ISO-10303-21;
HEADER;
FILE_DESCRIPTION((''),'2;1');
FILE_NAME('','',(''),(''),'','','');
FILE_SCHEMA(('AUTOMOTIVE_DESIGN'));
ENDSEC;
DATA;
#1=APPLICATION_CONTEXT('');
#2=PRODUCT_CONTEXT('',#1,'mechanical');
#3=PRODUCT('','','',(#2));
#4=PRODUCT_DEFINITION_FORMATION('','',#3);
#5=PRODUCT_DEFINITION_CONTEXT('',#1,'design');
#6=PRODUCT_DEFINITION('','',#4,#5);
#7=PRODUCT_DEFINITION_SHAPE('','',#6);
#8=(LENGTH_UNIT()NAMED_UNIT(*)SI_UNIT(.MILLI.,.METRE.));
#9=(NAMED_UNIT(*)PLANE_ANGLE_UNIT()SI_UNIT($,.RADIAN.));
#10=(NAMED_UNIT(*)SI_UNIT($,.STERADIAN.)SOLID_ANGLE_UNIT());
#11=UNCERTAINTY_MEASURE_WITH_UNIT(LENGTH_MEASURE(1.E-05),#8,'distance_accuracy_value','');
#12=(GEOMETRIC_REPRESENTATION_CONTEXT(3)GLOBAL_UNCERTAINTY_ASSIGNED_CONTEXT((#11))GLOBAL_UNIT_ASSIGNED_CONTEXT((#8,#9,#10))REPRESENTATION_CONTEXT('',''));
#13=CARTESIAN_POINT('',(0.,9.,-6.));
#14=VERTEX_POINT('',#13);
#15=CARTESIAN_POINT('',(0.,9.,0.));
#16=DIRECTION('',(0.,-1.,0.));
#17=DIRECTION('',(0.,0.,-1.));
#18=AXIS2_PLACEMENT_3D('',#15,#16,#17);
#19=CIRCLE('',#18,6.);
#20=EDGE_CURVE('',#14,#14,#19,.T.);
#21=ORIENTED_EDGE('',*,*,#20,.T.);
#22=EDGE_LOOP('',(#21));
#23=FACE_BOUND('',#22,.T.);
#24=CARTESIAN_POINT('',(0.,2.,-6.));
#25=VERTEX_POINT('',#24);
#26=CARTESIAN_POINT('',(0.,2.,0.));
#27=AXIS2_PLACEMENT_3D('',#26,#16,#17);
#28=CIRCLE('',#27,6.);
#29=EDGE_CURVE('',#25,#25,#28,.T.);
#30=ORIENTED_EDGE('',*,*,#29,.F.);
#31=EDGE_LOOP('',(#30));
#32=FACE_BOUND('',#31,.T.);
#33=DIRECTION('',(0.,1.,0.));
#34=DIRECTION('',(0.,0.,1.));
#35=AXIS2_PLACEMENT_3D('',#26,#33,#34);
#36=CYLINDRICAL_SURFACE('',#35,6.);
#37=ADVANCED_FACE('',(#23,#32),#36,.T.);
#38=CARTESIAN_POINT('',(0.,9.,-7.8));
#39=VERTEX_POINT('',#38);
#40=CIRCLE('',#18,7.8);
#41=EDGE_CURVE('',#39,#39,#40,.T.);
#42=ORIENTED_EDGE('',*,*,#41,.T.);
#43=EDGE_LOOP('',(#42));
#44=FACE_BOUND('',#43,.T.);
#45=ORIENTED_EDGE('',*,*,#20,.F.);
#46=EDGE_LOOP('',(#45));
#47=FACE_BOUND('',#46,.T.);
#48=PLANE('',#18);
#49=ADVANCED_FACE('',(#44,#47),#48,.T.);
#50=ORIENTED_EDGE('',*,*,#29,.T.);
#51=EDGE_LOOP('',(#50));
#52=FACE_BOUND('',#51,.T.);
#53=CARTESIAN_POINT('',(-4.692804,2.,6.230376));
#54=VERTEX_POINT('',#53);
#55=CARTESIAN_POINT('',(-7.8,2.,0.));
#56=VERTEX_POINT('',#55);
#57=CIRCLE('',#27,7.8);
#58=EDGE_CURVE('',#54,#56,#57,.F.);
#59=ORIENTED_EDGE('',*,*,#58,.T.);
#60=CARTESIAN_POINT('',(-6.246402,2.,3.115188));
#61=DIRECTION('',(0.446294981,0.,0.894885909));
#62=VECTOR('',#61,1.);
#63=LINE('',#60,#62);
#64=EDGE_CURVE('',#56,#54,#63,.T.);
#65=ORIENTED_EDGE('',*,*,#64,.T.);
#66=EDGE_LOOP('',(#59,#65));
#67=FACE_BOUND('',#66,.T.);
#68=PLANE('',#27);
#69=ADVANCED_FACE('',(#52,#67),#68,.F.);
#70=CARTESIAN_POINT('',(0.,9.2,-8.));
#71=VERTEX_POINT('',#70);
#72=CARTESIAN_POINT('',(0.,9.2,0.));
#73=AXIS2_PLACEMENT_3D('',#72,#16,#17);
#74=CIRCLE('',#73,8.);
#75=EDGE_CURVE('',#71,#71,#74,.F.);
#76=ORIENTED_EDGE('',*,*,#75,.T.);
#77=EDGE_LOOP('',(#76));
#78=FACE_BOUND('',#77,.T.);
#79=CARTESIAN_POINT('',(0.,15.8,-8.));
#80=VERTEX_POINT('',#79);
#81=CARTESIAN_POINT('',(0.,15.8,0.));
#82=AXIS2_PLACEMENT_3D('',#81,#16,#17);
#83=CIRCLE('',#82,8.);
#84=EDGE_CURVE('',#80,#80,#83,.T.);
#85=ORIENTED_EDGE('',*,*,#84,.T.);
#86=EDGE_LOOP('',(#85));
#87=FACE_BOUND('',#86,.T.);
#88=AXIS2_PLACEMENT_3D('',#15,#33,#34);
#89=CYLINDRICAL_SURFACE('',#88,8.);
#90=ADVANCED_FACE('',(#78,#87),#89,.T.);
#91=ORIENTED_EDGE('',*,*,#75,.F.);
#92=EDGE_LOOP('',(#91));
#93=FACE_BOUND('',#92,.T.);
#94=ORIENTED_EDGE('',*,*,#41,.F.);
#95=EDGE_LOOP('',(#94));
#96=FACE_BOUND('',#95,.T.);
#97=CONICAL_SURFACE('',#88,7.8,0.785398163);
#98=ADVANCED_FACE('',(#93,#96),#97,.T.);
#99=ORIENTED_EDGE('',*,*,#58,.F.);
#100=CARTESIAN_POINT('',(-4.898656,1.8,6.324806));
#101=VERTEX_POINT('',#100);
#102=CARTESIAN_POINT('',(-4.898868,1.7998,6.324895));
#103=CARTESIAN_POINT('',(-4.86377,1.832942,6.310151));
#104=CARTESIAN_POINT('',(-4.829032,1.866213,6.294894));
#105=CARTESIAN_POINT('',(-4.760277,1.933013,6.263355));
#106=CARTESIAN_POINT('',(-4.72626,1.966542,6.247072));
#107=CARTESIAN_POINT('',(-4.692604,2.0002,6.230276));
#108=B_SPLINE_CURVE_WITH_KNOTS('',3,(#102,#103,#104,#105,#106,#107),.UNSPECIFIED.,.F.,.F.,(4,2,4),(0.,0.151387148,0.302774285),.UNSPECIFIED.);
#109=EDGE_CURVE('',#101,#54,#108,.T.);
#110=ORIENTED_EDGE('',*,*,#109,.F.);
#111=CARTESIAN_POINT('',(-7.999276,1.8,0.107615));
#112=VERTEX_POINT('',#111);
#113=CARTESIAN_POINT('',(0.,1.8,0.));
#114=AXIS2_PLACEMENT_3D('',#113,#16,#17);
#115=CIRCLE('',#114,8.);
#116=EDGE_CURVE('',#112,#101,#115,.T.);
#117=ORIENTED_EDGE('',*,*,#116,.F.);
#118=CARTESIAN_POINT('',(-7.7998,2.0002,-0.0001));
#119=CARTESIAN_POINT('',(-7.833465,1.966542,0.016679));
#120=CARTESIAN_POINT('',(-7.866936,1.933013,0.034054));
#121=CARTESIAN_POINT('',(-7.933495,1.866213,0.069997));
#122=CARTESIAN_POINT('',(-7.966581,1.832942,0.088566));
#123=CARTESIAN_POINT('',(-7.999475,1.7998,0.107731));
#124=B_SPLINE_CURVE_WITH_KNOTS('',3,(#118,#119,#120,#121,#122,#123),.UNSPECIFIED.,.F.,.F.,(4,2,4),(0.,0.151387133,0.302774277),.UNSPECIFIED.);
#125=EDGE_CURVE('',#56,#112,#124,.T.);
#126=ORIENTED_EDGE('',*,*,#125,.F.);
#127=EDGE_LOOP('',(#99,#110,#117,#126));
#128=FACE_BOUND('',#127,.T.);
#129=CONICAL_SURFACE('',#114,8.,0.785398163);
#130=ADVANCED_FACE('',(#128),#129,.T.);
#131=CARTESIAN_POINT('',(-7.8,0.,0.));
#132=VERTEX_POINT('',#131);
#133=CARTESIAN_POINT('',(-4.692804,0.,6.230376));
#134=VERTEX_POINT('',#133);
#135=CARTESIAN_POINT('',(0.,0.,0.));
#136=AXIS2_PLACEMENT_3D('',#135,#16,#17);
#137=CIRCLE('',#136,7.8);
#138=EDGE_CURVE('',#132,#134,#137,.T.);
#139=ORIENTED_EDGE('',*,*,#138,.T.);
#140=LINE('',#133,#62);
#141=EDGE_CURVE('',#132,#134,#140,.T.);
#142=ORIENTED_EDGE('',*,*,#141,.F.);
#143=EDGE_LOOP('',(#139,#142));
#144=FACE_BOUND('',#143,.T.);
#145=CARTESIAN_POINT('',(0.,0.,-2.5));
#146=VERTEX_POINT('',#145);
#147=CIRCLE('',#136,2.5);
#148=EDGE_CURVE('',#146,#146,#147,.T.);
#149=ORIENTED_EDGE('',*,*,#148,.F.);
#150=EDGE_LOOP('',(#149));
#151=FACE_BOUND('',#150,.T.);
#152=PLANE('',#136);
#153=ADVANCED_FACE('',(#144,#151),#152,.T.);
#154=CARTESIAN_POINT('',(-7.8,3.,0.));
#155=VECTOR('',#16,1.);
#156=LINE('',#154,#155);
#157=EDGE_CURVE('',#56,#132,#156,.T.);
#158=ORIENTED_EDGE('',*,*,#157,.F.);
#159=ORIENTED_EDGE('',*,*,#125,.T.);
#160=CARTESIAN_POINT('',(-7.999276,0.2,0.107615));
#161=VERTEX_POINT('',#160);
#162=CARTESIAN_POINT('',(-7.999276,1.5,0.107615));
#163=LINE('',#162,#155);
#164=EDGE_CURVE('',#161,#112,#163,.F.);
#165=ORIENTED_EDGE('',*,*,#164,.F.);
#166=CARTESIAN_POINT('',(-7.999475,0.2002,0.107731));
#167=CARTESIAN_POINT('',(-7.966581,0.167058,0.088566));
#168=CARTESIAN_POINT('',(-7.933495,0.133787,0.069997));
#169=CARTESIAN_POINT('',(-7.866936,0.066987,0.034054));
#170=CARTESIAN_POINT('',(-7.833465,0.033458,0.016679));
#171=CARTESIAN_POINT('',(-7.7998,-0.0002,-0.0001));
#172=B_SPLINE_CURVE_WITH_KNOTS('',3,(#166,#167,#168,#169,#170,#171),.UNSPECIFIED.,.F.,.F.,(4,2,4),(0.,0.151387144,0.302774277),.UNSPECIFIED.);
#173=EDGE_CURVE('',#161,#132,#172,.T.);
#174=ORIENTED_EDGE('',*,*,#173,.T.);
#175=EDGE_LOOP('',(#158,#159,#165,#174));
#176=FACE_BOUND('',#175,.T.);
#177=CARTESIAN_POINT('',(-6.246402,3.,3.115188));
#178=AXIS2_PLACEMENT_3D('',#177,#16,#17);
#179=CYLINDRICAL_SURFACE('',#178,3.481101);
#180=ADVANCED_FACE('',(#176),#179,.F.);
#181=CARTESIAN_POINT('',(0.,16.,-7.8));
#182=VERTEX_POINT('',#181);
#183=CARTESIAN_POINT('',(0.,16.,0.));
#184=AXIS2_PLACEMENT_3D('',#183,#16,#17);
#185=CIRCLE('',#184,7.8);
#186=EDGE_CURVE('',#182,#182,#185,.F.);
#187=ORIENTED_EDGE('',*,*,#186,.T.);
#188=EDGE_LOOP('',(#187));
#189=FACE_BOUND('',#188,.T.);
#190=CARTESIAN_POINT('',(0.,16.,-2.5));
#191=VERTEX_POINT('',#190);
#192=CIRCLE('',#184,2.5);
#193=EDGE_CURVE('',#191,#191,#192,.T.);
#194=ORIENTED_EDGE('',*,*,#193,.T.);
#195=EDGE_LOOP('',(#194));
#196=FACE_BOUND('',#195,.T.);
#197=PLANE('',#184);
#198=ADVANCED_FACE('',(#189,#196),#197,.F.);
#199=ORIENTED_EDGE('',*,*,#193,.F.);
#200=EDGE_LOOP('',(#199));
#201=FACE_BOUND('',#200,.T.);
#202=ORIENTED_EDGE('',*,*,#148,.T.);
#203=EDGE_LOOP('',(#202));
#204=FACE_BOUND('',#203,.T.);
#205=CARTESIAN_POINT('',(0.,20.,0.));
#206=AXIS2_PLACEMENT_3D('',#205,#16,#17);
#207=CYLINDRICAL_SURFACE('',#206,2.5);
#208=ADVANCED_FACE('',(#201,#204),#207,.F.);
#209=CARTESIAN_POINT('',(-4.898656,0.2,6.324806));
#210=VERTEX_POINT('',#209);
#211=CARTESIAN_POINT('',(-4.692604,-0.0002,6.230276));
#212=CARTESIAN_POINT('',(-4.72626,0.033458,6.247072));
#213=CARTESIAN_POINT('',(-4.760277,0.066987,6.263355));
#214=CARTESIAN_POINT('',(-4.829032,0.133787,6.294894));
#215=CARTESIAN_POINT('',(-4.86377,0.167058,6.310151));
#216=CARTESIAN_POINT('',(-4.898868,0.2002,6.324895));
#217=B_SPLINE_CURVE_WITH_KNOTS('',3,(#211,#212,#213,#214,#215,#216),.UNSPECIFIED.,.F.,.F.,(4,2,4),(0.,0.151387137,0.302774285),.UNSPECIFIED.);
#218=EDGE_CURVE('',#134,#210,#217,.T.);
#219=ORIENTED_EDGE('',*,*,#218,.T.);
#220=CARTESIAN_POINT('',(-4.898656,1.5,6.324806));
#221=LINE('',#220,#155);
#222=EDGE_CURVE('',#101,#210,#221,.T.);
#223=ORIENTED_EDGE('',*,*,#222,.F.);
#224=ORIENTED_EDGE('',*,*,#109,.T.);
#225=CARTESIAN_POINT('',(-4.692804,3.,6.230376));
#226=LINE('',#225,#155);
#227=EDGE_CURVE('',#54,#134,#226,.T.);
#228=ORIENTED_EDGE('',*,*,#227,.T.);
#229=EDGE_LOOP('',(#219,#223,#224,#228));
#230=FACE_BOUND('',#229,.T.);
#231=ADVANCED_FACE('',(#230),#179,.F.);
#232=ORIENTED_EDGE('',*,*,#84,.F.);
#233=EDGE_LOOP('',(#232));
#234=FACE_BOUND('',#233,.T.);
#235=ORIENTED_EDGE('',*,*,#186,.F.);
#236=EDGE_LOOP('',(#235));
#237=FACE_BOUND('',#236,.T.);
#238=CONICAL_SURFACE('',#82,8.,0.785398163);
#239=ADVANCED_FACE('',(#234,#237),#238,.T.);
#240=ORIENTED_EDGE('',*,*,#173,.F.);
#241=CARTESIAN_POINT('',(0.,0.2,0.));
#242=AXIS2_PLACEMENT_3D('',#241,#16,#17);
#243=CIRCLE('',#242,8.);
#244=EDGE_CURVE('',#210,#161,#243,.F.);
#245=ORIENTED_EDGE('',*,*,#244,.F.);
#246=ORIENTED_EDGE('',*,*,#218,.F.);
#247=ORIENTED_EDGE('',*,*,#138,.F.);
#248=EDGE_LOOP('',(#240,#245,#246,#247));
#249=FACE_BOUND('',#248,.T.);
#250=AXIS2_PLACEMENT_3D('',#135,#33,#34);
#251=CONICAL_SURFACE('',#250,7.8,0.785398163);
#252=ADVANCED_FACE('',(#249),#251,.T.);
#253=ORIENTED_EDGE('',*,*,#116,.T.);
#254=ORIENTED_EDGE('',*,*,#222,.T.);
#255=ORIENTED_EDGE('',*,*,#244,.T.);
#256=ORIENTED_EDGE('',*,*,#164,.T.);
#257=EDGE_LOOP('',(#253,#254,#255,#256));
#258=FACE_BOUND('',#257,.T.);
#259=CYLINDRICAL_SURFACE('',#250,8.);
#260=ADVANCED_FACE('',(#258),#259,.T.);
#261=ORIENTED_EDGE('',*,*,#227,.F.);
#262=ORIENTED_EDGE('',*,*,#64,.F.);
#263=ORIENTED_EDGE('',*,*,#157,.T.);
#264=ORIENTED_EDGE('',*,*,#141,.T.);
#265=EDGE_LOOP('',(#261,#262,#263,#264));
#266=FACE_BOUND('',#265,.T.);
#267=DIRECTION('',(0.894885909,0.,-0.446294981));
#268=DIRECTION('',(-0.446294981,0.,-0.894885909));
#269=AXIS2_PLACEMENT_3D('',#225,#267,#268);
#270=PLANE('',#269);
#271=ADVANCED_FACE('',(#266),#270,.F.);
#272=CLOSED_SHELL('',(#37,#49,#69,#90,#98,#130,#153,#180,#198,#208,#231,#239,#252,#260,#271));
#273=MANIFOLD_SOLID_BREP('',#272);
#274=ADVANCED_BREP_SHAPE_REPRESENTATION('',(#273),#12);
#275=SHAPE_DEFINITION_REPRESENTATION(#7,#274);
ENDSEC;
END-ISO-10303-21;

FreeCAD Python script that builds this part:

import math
import FreeCAD as App
import Part
import Sketcher
from FreeCAD import Vector


def edges_at(feature, points):
    """Names of the edges that pass closest to the given points."""
    edges = feature.Shape.Edges
    near = lambda p: min(range(len(edges)), key=lambda i: edges[i].distToShape(Part.Vertex(*p))[0])
    return sorted({f"Edge{near(p) + 1}" for p in points})

doc = App.newDocument("Part")
params = doc.addObject("Spreadsheet::Sheet", "Params")
for row, (alias, value) in enumerate([
    ("sketch1_diameter", "16 mm"),
    ("pad1_length", "7 mm"),
    ("sketch2_diameter", "12 mm"),
    ("pad2_length", "7 mm"),
    ("sketch3_diameter", "16 mm"),
    ("pad3_length", "2 mm"),
    ("chamfer_size", "0.2 mm"),
    ("sketch4_diameter", "5 mm"),
    ("pocket1_length", "20 mm"),
    ("pocket2_length", "3 mm"),
], start=1):
    params.set(f"A{row}", alias)
    params.set(f"B{row}", "=" + value)
    params.setAlias(f"B{row}", alias)

body = doc.addObject("PartDesign::Body", "Body")

# Sketch on XZ plane
sketch1 = body.newObject("Sketcher::SketchObject", "Sketch")
sketch1.AttachmentSupport = (doc.getObject("XZ_Plane"), [""])
sketch1.MapMode = "FlatFace"
sketch1.addGeometry(Part.Circle(Vector(0, 0, 0), Vector(0, 0, 1), 8), False)
sketch1.addConstraint(Sketcher.Constraint("Coincident", 0, 3, -1, 1))
sketch1.addConstraint(Sketcher.Constraint("Diameter", 0, 16.0))
sketch1.setExpression("Constraints[1]", "Params.sketch1_diameter")
pad1 = body.newObject("PartDesign::Pad", "Pad")
pad1.Profile = sketch1
pad1.setExpression("Length", "Params.pad1_length")
pad1.Reversed = True

# Sketch on XZ plane
sketch2 = body.newObject("Sketcher::SketchObject", "Sketch001")
sketch2.AttachmentSupport = (doc.getObject("XZ_Plane"), [""])
sketch2.MapMode = "FlatFace"
sketch2.AttachmentOffset = App.Placement(Vector(0, 0, -7), App.Rotation())
sketch2.addGeometry(Part.Circle(Vector(0, 0, 0), Vector(0, 0, 1), 6), False)
sketch2.addConstraint(Sketcher.Constraint("Coincident", 0, 3, -1, 1))
sketch2.addConstraint(Sketcher.Constraint("Diameter", 0, 12.0))
sketch2.setExpression("Constraints[1]", "Params.sketch2_diameter")
pad2 = body.newObject("PartDesign::Pad", "Pad001")
pad2.Profile = sketch2
pad2.setExpression("Length", "Params.pad2_length")
pad2.Reversed = True

# Sketch on XZ plane
sketch3 = body.newObject("Sketcher::SketchObject", "Sketch002")
sketch3.AttachmentSupport = (doc.getObject("XZ_Plane"), [""])
sketch3.MapMode = "FlatFace"
sketch3.AttachmentOffset = App.Placement(Vector(0, 0, -14), App.Rotation())
sketch3.addGeometry(Part.Circle(Vector(0, 0, 0), Vector(0, 0, 1), 8), False)
sketch3.addConstraint(Sketcher.Constraint("Coincident", 0, 3, -1, 1))
sketch3.addConstraint(Sketcher.Constraint("Diameter", 0, 16.0))
sketch3.setExpression("Constraints[1]", "Params.sketch3_diameter")
pad3 = body.newObject("PartDesign::Pad", "Pad002")
pad3.Profile = sketch3
pad3.setExpression("Length", "Params.pad3_length")
pad3.Reversed = True
doc.recompute()

chamfer = body.newObject("PartDesign::Chamfer", "Chamfer")
chamfer.Base = (pad3, edges_at(pad3, [
    (0, 0, -8),
    (0, 7, -8),
    (0, 14, -8),
    (0, 16, -8),
]))
chamfer.setExpression("Size", "Params.chamfer_size")

# Sketch on XZ plane
sketch4 = body.newObject("Sketcher::SketchObject", "Sketch003")
sketch4.AttachmentSupport = (doc.getObject("XZ_Plane"), [""])
sketch4.MapMode = "FlatFace"
sketch4.AttachmentOffset = App.Placement(Vector(0, 0, -16), App.Rotation())
sketch4.addGeometry(Part.Circle(Vector(0, 0, 0), Vector(0, 0, 1), 2.5), False)
sketch4.addConstraint(Sketcher.Constraint("Coincident", 0, 3, -1, 1))
sketch4.addConstraint(Sketcher.Constraint("Diameter", 0, 5.0))
sketch4.setExpression("Constraints[1]", "Params.sketch4_diameter")
pocket1 = body.newObject("PartDesign::Pocket", "Pocket")
pocket1.Profile = sketch4
pocket1.setExpression("Length", "Params.pocket1_length")
pocket1.Reversed = True
body2 = doc.addObject("PartDesign::Body", "Body001")
doc.recompute()

body.Placement = App.Placement(Vector(0, 16, 0), App.Rotation(Vector(1, 0, 0), 180))
boolean = body2.newObject("PartDesign::Boolean", "Boolean")
boolean.Type = "Fuse"
boolean.addObjects([body])

# Sketch on XZ plane
sketch5 = body2.newObject("Sketcher::SketchObject", "Sketch004")
sketch5.AttachmentSupport = (doc.getObject("XZ_Plane001"), [""])
sketch5.MapMode = "FlatFace"
sketch5.addGeometry(Part.LineSegment(Vector(-7.8, 0, 0), Vector(-4.7, 6.2, 0)), False)
sketch5.addGeometry(Part.ArcOfCircle(Part.Circle(Vector(-6.2, 3.1, 0), Vector(0, 0, 1), 3.5), math.radians(63), math.radians(243)), False)
sketch5.addConstraint(Sketcher.Constraint("Coincident", 0, 1, 1, 2))
sketch5.addConstraint(Sketcher.Constraint("Coincident", 1, 1, 0, 2))
sketch5.addConstraint(Sketcher.Constraint("PointOnObject", 0, 1, -1))
sketch5.addConstraint(Sketcher.Constraint("DistanceX", 0, 1, -1, 1, 7.8))
sketch5.addConstraint(Sketcher.Constraint("Radius", 1, 3.481101))
sketch5.addConstraint(Sketcher.Constraint("DistanceY", -1, 1, 1, 3, 3.115188))
sketch5.addConstraint(Sketcher.Constraint("DistanceY", 1, 3, 1, 1, 3.115188))
pocket2 = body2.newObject("PartDesign::Pocket", "Pocket001")
pocket2.Profile = sketch5
pocket2.setExpression("Length", "Params.pocket2_length")

doc.recompute()
